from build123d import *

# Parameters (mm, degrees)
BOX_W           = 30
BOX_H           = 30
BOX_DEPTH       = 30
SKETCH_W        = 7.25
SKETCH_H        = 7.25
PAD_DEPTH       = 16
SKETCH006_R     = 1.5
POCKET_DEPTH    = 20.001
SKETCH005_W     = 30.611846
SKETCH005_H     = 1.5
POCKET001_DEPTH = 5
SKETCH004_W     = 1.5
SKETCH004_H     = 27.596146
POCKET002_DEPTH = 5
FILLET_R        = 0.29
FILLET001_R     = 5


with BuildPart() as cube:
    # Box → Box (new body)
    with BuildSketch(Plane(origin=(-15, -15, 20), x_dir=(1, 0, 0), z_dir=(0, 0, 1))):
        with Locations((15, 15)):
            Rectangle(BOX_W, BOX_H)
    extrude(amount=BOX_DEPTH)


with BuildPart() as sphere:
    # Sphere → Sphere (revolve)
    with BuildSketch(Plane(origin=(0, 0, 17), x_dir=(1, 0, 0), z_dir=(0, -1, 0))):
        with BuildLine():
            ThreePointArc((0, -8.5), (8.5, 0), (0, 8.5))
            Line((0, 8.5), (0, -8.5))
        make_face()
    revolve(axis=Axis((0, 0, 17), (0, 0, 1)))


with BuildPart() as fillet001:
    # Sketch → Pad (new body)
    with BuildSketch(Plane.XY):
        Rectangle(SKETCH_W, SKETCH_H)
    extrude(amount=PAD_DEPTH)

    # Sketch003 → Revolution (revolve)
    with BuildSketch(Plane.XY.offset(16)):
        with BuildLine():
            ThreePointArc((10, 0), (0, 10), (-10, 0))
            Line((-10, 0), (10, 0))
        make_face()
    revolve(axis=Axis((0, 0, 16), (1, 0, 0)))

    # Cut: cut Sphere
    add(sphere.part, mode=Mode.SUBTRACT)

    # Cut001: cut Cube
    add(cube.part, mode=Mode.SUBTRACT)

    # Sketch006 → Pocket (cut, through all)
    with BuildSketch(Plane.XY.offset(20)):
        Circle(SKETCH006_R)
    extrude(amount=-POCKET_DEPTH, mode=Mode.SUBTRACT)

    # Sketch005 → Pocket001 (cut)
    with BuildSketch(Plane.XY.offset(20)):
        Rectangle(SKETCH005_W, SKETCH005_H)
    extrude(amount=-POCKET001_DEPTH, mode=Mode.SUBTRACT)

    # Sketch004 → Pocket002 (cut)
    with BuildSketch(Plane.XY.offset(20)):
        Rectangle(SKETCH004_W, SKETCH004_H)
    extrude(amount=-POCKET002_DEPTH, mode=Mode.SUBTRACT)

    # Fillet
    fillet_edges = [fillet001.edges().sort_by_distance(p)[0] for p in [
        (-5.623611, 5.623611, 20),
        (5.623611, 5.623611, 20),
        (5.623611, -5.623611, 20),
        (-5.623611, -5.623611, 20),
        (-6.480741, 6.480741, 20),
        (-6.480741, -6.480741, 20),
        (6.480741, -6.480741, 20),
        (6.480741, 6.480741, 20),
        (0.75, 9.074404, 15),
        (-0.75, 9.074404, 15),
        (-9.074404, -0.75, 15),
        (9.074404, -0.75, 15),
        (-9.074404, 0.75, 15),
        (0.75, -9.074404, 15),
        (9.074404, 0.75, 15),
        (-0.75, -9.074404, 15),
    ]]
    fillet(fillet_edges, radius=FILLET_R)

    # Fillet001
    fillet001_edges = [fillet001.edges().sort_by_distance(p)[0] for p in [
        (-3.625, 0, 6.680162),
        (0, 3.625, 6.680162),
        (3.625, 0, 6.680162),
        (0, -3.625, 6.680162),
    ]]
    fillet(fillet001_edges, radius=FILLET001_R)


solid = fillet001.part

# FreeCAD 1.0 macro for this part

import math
import FreeCAD as App
import Part
import Sketcher

V = App.Vector
Q = App.Units.Quantity


def edges_at(feature, points):
    """Names of the edges that pass closest to the given points."""
    edges = feature.Shape.Edges
    near = lambda p: min(range(len(edges)), key=lambda i: edges[i].distToShape(Part.Vertex(*p))[0])
    return sorted({f"Edge{near(p) + 1}" for p in points})


def add_polygon(sketch, points):
    """Adds a closed chain of lines whose ends are joined by coincident constraints."""
    first, n = sketch.GeometryCount, len(points)
    for a, b in zip(points, points[1:] + points[:1]):
        sketch.addGeometry(Part.LineSegment(App.Vector(*a, 0), App.Vector(*b, 0)), False)
    for i in range(n):
        sketch.addConstraint(Sketcher.Constraint("Coincident", first + i, 2, first + (i + 1) % n, 1))

doc = App.newDocument("Part")
body = doc.addObject("PartDesign::Body", "Body")

# Sketch on XY plane
sketch1 = body.newObject("Sketcher::SketchObject", "Sketch")
sketch1.AttachmentSupport = (doc.getObject("XY_Plane"), [""])
sketch1.MapMode = "FlatFace"
sketch1.AttachmentOffset = App.Placement(V(0, 0, 20), App.Rotation())
add_polygon(sketch1, [(-15, 15), (-15, -15), (15, -15), (15, 15)])  # lines 0-3
sketch1.addConstraint(Sketcher.Constraint("Vertical", 0))
sketch1.addConstraint(Sketcher.Constraint("Horizontal", 1))
sketch1.addConstraint(Sketcher.Constraint("Vertical", 2))
sketch1.addConstraint(Sketcher.Constraint("Horizontal", 3))
sketch1.addConstraint(Sketcher.Constraint("Symmetric", 0, 2, 2, 2, -1, 1))
sketch1.addConstraint(Sketcher.Constraint("Equal", 3, 0))
sketch1.addConstraint(Sketcher.Constraint("DistanceX", 1, 1, 1, 2, Q("30 mm")))
pad1 = body.newObject("PartDesign::Pad", "Pad")
pad1.Profile = sketch1
pad1.Length = 30
body2 = doc.addObject("PartDesign::Body", "Body001")

# Sketch on XZ plane
sketch2 = body2.newObject("Sketcher::SketchObject", "Sketch001")
sketch2.AttachmentSupport = (doc.getObject("XZ_Plane001"), [""])
sketch2.MapMode = "FlatFace"
sketch2.addGeometry(Part.ArcOfCircle(Part.Circle(V(0, 17, 0), V(0, 0, 1), 8), math.radians(-90), math.radians(90)), False)
sketch2.addGeometry(Part.LineSegment(V(0, 26, 0), V(0, 8, 0)), False)
sketch2.addConstraint(Sketcher.Constraint("Coincident", 0, 1, 1, 2))
sketch2.addConstraint(Sketcher.Constraint("Coincident", 1, 1, 0, 2))
sketch2.addConstraint(Sketcher.Constraint("Vertical", 1))
sketch2.addConstraint(Sketcher.Constraint("PointOnObject", 0, 3, -2))
sketch2.addConstraint(Sketcher.Constraint("PointOnObject", 0, 1, -2))
sketch2.addConstraint(Sketcher.Constraint("Radius", 0, Q("8.5 mm")))
sketch2.addConstraint(Sketcher.Constraint("DistanceY", -1, 1, 0, 3, Q("17 mm")))
revolution = body2.newObject("PartDesign::Revolution", "Revolution")
revolution.Profile = sketch2
revolution.ReferenceAxis = (sketch2, ["V_Axis"])
revolution.Angle = 360
body3 = doc.addObject("PartDesign::Body", "Body002")

# Sketch on XY plane
sketch3 = body3.newObject("Sketcher::SketchObject", "Sketch002")
sketch3.AttachmentSupport = (doc.getObject("XY_Plane002"), [""])
sketch3.MapMode = "FlatFace"
add_polygon(sketch3, [(-4, 4), (-4, -4), (4, -4), (4, 4)])  # lines 0-3
sketch3.addConstraint(Sketcher.Constraint("Vertical", 0))
sketch3.addConstraint(Sketcher.Constraint("Horizontal", 1))
sketch3.addConstraint(Sketcher.Constraint("Vertical", 2))
sketch3.addConstraint(Sketcher.Constraint("Horizontal", 3))
sketch3.addConstraint(Sketcher.Constraint("Symmetric", 0, 2, 2, 2, -1, 1))
sketch3.addConstraint(Sketcher.Constraint("Equal", 3, 0))
sketch3.addConstraint(Sketcher.Constraint("DistanceX", 1, 1, 1, 2, Q("7.25 mm")))
pad2 = body3.newObject("PartDesign::Pad", "Pad001")
pad2.Profile = sketch3
pad2.Length = 16

# Sketch on XY plane
sketch4 = body3.newObject("Sketcher::SketchObject", "Sketch003")
sketch4.AttachmentSupport = (doc.getObject("XY_Plane002"), [""])
sketch4.MapMode = "FlatFace"
sketch4.AttachmentOffset = App.Placement(V(0, 0, 16), App.Rotation())
sketch4.addGeometry(Part.ArcOfCircle(Part.Circle(V(0, 0, 0), V(0, 0, 1), 10), math.radians(0), math.radians(180)), False)
sketch4.addGeometry(Part.LineSegment(V(-10, 0, 0), V(10, 0, 0)), False)
sketch4.addConstraint(Sketcher.Constraint("Coincident", 0, 1, 1, 2))
sketch4.addConstraint(Sketcher.Constraint("Coincident", 1, 1, 0, 2))
sketch4.addConstraint(Sketcher.Constraint("Horizontal", 1))
sketch4.addConstraint(Sketcher.Constraint("Coincident", 0, 3, -1, 1))
sketch4.addConstraint(Sketcher.Constraint("PointOnObject", 0, 1, -1))
sketch4.addConstraint(Sketcher.Constraint("Radius", 0, Q("10 mm")))
revolution2 = body3.newObject("PartDesign::Revolution", "Revolution001")
revolution2.Profile = sketch4
revolution2.ReferenceAxis = (sketch4, ["H_Axis"])
revolution2.Angle = 360
doc.recompute()

boolean = body3.newObject("PartDesign::Boolean", "Boolean")
boolean.Type = "Cut"
boolean.addObjects([body2])
doc.recompute()

boolean2 = body3.newObject("PartDesign::Boolean", "Boolean001")
boolean2.Type = "Cut"
boolean2.addObjects([body])

# Sketch on XY plane
sketch5 = body3.newObject("Sketcher::SketchObject", "Sketch004")
sketch5.AttachmentSupport = (doc.getObject("XY_Plane002"), [""])
sketch5.MapMode = "FlatFace"
sketch5.AttachmentOffset = App.Placement(V(0, 0, 20), App.Rotation())
sketch5.addGeometry(Part.Circle(V(0, 0, 0), V(0, 0, 1), 1.5), False)
sketch5.addConstraint(Sketcher.Constraint("Coincident", 0, 3, -1, 1))
sketch5.addConstraint(Sketcher.Constraint("Diameter", 0, Q("3 mm")))
pocket1 = body3.newObject("PartDesign::Pocket", "Pocket")
pocket1.Profile = sketch5
pocket1.Type = "ThroughAll"

# Sketch on XY plane
sketch6 = body3.newObject("Sketcher::SketchObject", "Sketch005")
sketch6.AttachmentSupport = (doc.getObject("XY_Plane002"), [""])
sketch6.MapMode = "FlatFace"
sketch6.AttachmentOffset = App.Placement(V(0, 0, 20), App.Rotation())
add_polygon(sketch6, [(-15.3, 0.8), (-15.3, -0.8), (15.3, -0.8), (15.3, 0.8)])  # lines 0-3
sketch6.addConstraint(Sketcher.Constraint("Vertical", 0))
sketch6.addConstraint(Sketcher.Constraint("Horizontal", 1))
sketch6.addConstraint(Sketcher.Constraint("Vertical", 2))
sketch6.addConstraint(Sketcher.Constraint("Horizontal", 3))
sketch6.addConstraint(Sketcher.Constraint("Symmetric", 0, 2, 2, 2, -1, 1))
sketch6.addConstraint(Sketcher.Constraint("DistanceY", 0, 2, 0, 1, Q("1.5 mm")))
sketch6.addConstraint(Sketcher.Constraint("DistanceX", 1, 1, 1, 2, Q("30.611846 mm")))
pocket2 = body3.newObject("PartDesign::Pocket", "Pocket001")
pocket2.Profile = sketch6
pocket2.Length = 5

# Sketch on XY plane
sketch7 = body3.newObject("Sketcher::SketchObject", "Sketch006")
sketch7.AttachmentSupport = (doc.getObject("XY_Plane002"), [""])
sketch7.MapMode = "FlatFace"
sketch7.AttachmentOffset = App.Placement(V(0, 0, 20), App.Rotation())
add_polygon(sketch7, [(-0.8, 13.8), (-0.8, -13.8), (0.8, -13.8), (0.8, 13.8)])  # lines 0-3
sketch7.addConstraint(Sketcher.Constraint("Vertical", 0))
sketch7.addConstraint(Sketcher.Constraint("Horizontal", 1))
sketch7.addConstraint(Sketcher.Constraint("Vertical", 2))
sketch7.addConstraint(Sketcher.Constraint("Horizontal", 3))
sketch7.addConstraint(Sketcher.Constraint("Symmetric", 0, 2, 2, 2, -1, 1))
sketch7.addConstraint(Sketcher.Constraint("DistanceX", 1, 1, 1, 2, Q("1.5 mm")))
sketch7.addConstraint(Sketcher.Constraint("DistanceY", 0, 2, 0, 1, Q("27.596146 mm")))
pocket3 = body3.newObject("PartDesign::Pocket", "Pocket002")
pocket3.Profile = sketch7
pocket3.Length = 5
doc.recompute()

fillet = body3.newObject("PartDesign::Fillet", "Fillet")
fillet.Base = (pocket3, edges_at(pocket3, [
    (-5.624, 5.624, 20),
    (5.624, 5.624, 20),
    (5.624, -5.624, 20),
    (-5.624, -5.624, 20),
    (-6.481, 6.481, 20),
    (-6.481, -6.481, 20),
    (6.481, -6.481, 20),
    (6.481, 6.481, 20),
    (0.75, 9.074, 15),
    (-0.75, 9.074, 15),
    (-9.074, -0.75, 15),
    (9.074, -0.75, 15),
    (-9.074, 0.75, 15),
    (0.75, -9.074, 15),
    (9.074, 0.75, 15),
    (-0.75, -9.074, 15),
]))
fillet.Radius = 0.29
doc.recompute()

fillet2 = body3.newObject("PartDesign::Fillet", "Fillet001")
fillet2.Base = (fillet, edges_at(fillet, [
    (-3.625, 0, 6.68),
    (0, 3.625, 6.68),
    (3.625, 0, 6.68),
    (0, -3.625, 6.68),
]))
fillet2.Radius = 5

doc.recompute()
